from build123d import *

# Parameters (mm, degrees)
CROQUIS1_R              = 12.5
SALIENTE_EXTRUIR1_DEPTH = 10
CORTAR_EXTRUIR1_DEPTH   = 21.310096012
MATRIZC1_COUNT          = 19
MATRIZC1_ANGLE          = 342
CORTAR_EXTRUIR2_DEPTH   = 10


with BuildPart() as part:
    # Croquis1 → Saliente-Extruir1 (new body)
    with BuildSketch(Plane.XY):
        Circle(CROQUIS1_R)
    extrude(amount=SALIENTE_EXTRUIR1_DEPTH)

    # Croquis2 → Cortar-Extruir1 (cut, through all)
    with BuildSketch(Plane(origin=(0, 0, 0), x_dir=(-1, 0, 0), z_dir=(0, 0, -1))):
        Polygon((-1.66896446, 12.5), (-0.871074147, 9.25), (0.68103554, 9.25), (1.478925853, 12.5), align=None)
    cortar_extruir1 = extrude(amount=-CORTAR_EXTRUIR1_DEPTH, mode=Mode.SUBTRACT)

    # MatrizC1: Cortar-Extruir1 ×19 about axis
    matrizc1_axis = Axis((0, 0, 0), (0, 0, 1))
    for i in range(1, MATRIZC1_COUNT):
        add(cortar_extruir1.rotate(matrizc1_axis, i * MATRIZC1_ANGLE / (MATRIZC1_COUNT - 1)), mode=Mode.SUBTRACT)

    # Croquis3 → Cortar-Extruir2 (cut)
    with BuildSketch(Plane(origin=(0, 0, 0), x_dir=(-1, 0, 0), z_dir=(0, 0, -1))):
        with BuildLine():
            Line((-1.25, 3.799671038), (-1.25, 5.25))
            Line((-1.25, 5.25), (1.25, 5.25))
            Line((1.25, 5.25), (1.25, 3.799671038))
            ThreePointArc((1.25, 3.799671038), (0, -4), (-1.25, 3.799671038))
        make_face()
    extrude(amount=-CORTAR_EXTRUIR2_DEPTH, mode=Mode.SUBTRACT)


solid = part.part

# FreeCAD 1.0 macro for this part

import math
import FreeCAD as App
import Part
import Sketcher

V = App.Vector


def add_polygon(sketch, points):
    """Adds a closed chain of lines whose ends are joined by coincident constraints."""
    first, n = sketch.GeometryCount, len(points)
    for a, b in zip(points, points[1:] + points[:1]):
        sketch.addGeometry(Part.LineSegment(App.Vector(*a, 0), App.Vector(*b, 0)), False)
    for i in range(n):
        sketch.addConstraint(Sketcher.Constraint("Coincident", first + i, 2, first + (i + 1) % n, 1))

doc = App.newDocument("Part")
params = doc.addObject("Spreadsheet::Sheet", "Params")
for row, (alias, value) in enumerate([
    ("sketch1_diameter", "25 mm"),
    ("pad1_length", "10 mm"),
    ("sketch3_radius", "4 mm"),
    ("sketch3_width", "2.5 mm"),
    ("pocket2_length", "10 mm"),
], start=1):
    params.set(f"A{row}", alias)
    params.set(f"B{row}", "=" + value)
    params.setAlias(f"B{row}", alias)

body = doc.addObject("PartDesign::Body", "Body")

sketch1 = body.newObject("Sketcher::SketchObject", "Sketch")
sketch1.AttachmentSupport = (doc.getObject("XY_Plane"), [""])
sketch1.MapMode = "FlatFace"
sketch1.addGeometry(Part.Circle(V(0, 0, 0), V(0, 0, 1), 12), False)
sketch1.addConstraint(Sketcher.Constraint("Coincident", 0, 3, -1, 1))
sketch1.addConstraint(Sketcher.Constraint("Diameter", 0, 25.0))
sketch1.setExpression("Constraints[1]", "Params.sketch1_diameter")
pad1 = body.newObject("PartDesign::Pad", "Pad")
pad1.Profile = sketch1
pad1.setExpression("Length", "Params.pad1_length")

sketch2 = body.newObject("Sketcher::SketchObject", "Sketch001")
sketch2.AttachmentSupport = (doc.getObject("XY_Plane"), [""])
sketch2.MapMode = "FlatFace"
add_polygon(sketch2, [(1.7, 12.5), (0.9, 9.2), (-0.7, 9.2), (-1.5, 12.5)])
sketch2.addConstraint(Sketcher.Constraint("Horizontal", 1))
sketch2.addConstraint(Sketcher.Constraint("Horizontal", 3))
sketch2.addConstraint(Sketcher.Constraint("Equal", 0, 2))
sketch2.addConstraint(Sketcher.Constraint("DistanceY", -1, 1, 2, 2, 12.5))
sketch2.addConstraint(Sketcher.Constraint("DistanceY", -1, 1, 0, 2, 9.25))
sketch2.addConstraint(Sketcher.Constraint("DistanceX", 2, 2, 0, 2, 2.35))
sketch2.addConstraint(Sketcher.Constraint("DistanceX", 1, 2, 1, 1, 1.55211))
sketch2.addConstraint(Sketcher.Constraint("DistanceX", -1, 1, 0, 2, 0.871074))
pocket1 = body.newObject("PartDesign::Pocket", "Pocket")
pocket1.Profile = sketch2
pocket1.Type = "ThroughAll"
pocket1.Reversed = True
doc.recompute()

polarpattern = body.newObject("PartDesign::PolarPattern", "PolarPattern")
polarpattern.Originals = [pocket1]
polarpattern.Axis = (doc.getObject("Z_Axis"), [""])
polarpattern.Angle = 342
polarpattern.Occurrences = 19
body.Tip = polarpattern

sketch3 = body.newObject("Sketcher::SketchObject", "Sketch002")
sketch3.AttachmentSupport = (doc.getObject("XY_Plane"), [""])
sketch3.MapMode = "FlatFace"
sketch3.addGeometry(Part.LineSegment(V(1.2, 5.2, 0), V(1.2, 3.8, 0)), False)
sketch3.addGeometry(Part.ArcOfCircle(Part.Circle(V(0, 0, 0), V(0, 0, 1), 4), math.radians(108), math.radians(432)), False)
sketch3.addGeometry(Part.LineSegment(V(-1.2, 3.8, 0), V(-1.2, 5.2, 0)), False)
sketch3.addGeometry(Part.LineSegment(V(-1.2, 5.2, 0), V(1.2, 5.2, 0)), False)
sketch3.addConstraint(Sketcher.Constraint("Coincident", 0, 2, 1, 2))
sketch3.addConstraint(Sketcher.Constraint("Coincident", 1, 1, 2, 1))
sketch3.addConstraint(Sketcher.Constraint("Coincident", 2, 2, 3, 1))
sketch3.addConstraint(Sketcher.Constraint("Coincident", 3, 2, 0, 1))
sketch3.addConstraint(Sketcher.Constraint("Vertical", 0))
sketch3.addConstraint(Sketcher.Constraint("Vertical", 2))
sketch3.addConstraint(Sketcher.Constraint("Horizontal", 3))
sketch3.addConstraint(Sketcher.Constraint("Coincident", 1, 3, -1, 1))
sketch3.addConstraint(Sketcher.Constraint("Horizontal", 0, 2, 1, 1))
sketch3.addConstraint(Sketcher.Constraint("Radius", 1, 4.0))
sketch3.addConstraint(Sketcher.Constraint("DistanceX", 3, 1, 3, 2, 2.5))
sketch3.addConstraint(Sketcher.Constraint("DistanceY", -1, 1, 2, 2, 5.25))
sketch3.setExpression("Constraints[9]", "Params.sketch3_radius")
sketch3.setExpression("Constraints[10]", "Params.sketch3_width")
pocket2 = body.newObject("PartDesign::Pocket", "Pocket001")
pocket2.Profile = sketch3
pocket2.setExpression("Length", "Params.pocket2_length")
pocket2.Reversed = True

doc.recompute()
